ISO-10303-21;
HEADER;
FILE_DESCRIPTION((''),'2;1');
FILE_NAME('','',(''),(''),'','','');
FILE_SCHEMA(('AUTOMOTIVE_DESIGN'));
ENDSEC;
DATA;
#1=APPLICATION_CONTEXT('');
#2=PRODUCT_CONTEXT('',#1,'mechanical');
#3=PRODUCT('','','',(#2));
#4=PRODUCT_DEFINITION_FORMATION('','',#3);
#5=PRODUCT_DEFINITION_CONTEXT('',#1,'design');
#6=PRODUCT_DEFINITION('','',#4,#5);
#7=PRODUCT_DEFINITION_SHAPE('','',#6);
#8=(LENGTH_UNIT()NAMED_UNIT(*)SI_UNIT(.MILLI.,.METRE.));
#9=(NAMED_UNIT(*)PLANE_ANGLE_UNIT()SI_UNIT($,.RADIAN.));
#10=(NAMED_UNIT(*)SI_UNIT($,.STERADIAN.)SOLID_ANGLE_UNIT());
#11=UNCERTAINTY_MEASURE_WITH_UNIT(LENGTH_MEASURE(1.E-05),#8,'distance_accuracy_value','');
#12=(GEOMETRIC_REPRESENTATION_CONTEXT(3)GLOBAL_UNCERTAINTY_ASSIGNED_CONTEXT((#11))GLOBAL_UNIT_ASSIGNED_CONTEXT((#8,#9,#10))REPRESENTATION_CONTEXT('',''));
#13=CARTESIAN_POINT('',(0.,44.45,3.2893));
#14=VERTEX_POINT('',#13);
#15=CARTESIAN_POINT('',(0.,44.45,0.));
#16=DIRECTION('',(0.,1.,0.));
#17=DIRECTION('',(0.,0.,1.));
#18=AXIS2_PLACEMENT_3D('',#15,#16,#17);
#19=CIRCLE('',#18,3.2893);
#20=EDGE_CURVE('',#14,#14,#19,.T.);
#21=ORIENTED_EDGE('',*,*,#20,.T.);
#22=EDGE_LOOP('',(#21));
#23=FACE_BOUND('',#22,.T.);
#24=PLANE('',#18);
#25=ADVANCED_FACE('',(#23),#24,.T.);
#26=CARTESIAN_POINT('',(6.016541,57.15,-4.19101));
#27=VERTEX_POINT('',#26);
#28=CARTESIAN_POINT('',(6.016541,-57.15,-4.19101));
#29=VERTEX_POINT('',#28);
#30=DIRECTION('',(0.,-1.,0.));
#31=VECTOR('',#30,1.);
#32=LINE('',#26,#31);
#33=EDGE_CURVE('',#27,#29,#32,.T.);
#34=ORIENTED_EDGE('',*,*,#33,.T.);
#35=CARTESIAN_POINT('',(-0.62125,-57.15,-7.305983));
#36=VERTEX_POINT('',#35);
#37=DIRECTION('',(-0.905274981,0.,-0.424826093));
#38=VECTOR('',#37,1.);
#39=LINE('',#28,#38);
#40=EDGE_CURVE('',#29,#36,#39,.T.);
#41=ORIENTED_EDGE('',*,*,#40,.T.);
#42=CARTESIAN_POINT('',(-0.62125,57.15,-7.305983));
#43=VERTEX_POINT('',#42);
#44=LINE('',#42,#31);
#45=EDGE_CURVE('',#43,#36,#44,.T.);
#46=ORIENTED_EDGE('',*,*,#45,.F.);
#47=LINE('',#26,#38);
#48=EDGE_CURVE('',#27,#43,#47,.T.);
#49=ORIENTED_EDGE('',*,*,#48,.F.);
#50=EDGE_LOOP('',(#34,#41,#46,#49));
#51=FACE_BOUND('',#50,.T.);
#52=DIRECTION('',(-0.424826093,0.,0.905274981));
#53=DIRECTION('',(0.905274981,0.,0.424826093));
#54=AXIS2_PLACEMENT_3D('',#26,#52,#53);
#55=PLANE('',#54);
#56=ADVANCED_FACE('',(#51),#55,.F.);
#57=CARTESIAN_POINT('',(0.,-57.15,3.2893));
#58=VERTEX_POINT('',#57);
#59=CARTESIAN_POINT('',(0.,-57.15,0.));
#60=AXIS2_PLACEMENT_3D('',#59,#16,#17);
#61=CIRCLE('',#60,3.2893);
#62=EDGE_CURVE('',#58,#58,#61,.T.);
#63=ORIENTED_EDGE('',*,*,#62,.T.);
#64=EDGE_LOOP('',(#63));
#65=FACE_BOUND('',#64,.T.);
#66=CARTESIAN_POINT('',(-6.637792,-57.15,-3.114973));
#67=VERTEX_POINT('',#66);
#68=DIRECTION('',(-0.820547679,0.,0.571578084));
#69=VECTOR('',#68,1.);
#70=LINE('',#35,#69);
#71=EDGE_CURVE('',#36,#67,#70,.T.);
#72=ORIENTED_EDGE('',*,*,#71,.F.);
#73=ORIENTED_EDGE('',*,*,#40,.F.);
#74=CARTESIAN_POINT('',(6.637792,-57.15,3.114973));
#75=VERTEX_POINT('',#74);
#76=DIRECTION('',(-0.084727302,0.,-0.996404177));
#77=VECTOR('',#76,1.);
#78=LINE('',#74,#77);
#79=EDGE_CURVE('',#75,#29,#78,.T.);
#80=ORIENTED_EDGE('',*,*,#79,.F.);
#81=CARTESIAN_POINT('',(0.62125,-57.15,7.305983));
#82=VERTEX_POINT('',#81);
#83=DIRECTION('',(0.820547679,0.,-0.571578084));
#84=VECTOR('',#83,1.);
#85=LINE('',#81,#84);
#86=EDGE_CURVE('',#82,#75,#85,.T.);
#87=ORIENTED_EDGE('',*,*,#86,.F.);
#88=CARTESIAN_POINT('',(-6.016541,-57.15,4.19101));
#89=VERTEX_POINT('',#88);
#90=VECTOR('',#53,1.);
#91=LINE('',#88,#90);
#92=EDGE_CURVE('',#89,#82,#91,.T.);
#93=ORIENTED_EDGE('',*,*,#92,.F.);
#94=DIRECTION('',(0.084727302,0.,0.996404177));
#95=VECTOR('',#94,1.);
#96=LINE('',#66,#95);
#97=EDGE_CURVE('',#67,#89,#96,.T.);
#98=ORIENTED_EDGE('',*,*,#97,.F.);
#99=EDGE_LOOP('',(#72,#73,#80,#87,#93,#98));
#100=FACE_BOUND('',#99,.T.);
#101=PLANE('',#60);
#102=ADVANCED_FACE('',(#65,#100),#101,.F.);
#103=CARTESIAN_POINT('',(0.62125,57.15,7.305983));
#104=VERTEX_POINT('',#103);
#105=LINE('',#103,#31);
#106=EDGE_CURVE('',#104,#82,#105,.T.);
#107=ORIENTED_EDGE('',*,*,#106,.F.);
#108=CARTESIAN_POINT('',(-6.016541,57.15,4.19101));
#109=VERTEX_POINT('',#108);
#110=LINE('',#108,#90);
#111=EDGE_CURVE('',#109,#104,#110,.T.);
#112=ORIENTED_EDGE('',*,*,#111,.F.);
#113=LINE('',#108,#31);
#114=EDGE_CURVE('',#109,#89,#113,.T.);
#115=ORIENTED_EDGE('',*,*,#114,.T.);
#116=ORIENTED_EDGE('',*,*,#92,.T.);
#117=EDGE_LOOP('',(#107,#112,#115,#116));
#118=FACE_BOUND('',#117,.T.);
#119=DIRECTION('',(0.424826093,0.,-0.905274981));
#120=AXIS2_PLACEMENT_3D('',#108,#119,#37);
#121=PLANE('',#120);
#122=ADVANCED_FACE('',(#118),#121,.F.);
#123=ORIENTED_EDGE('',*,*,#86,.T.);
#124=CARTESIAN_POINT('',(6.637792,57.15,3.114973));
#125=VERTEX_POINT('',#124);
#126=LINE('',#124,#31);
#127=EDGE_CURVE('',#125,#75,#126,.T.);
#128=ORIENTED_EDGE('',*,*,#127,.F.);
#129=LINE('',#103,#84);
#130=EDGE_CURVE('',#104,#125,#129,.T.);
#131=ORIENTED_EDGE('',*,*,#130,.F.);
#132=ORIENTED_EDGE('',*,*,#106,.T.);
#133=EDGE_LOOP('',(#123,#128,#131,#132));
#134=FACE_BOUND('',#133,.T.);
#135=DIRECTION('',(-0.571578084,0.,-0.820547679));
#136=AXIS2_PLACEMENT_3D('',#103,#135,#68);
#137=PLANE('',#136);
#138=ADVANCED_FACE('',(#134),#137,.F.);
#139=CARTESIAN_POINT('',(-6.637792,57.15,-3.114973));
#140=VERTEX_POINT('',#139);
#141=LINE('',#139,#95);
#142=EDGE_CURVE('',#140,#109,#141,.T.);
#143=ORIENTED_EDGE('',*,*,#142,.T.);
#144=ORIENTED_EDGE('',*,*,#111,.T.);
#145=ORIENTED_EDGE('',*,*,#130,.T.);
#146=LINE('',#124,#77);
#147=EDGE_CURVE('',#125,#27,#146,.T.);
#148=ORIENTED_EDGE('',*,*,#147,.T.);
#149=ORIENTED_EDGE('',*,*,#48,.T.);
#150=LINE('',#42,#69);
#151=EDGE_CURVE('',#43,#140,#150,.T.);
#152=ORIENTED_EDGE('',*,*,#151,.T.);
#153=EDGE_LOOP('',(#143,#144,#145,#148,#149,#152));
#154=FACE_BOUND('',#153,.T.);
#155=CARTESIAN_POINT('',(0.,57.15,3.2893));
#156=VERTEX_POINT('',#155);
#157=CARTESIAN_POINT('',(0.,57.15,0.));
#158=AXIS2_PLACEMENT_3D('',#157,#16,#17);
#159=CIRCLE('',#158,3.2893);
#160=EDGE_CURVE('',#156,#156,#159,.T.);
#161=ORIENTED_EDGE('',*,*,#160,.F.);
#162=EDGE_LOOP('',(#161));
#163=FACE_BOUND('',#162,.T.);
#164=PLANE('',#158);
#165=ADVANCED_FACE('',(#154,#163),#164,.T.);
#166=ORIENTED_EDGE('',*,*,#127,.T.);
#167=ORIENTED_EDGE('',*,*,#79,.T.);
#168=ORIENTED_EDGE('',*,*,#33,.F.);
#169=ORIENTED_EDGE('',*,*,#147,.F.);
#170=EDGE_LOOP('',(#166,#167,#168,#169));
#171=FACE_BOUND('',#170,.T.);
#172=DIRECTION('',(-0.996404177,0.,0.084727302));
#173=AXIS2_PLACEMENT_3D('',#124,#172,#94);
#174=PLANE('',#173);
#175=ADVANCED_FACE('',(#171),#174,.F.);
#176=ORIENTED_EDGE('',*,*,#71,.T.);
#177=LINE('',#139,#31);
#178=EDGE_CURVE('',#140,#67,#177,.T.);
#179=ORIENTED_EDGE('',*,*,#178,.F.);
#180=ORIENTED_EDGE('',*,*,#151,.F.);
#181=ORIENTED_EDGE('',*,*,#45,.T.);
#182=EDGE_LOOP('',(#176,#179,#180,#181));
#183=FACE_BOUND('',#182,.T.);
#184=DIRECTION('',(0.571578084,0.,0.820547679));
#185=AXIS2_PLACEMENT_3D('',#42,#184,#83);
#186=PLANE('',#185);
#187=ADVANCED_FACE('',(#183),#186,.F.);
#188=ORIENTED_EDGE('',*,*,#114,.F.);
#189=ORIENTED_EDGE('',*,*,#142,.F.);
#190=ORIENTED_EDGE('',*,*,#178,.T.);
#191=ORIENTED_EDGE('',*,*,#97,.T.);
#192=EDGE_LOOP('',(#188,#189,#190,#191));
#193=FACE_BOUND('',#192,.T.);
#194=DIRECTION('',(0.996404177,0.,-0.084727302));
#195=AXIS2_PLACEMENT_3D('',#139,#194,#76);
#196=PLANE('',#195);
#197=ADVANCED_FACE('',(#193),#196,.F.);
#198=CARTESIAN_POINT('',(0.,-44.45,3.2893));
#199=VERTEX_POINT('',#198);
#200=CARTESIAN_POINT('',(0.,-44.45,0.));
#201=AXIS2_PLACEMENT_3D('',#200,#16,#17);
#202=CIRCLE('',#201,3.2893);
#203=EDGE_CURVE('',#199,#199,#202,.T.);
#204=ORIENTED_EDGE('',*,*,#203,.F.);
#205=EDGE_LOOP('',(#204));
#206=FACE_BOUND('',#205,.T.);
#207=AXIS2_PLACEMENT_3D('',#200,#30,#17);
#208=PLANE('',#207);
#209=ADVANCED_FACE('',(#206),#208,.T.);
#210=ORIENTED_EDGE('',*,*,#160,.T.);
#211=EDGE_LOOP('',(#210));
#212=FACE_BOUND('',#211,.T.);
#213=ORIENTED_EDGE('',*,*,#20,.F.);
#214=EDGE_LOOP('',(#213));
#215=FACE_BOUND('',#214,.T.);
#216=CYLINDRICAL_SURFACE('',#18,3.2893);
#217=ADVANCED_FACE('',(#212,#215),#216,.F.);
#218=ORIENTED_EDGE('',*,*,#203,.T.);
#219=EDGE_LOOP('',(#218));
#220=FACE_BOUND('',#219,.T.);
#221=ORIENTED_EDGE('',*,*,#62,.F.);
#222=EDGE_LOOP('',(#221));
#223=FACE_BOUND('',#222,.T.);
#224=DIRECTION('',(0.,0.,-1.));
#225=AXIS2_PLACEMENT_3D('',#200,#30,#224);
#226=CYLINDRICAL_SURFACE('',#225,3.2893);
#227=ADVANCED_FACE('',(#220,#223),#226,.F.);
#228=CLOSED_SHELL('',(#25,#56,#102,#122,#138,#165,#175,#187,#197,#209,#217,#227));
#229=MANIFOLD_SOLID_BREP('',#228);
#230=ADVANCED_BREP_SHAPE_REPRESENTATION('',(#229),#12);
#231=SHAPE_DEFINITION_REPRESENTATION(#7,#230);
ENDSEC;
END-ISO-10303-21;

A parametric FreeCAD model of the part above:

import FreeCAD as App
import Part
import Sketcher

V = App.Vector
Q = App.Units.Quantity

doc = App.newDocument("Part")
body = doc.addObject("PartDesign::Body", "Body")

# Sketch on XZ plane
sketch1 = body.newObject("Sketcher::SketchObject", "Sketch")
sketch1.AttachmentSupport = (doc.getObject("XZ_Plane"), [""])
sketch1.MapMode = "FlatFace"
sketch1.addGeometry(Part.LineSegment(V(6, -4, 0), V(-1, -7, 0)), False)
sketch1.addGeometry(Part.LineSegment(V(-1, -7, 0), V(-7, -3, 0)), False)
sketch1.addGeometry(Part.LineSegment(V(-7, -3, 0), V(-6, 4, 0)), False)
sketch1.addGeometry(Part.LineSegment(V(-6, 4, 0), V(1, 7, 0)), False)
sketch1.addGeometry(Part.LineSegment(V(1, 7, 0), V(7, 3, 0)), False)
sketch1.addGeometry(Part.LineSegment(V(7, 3, 0), V(6, -4, 0)), False)
sketch1.addConstraint(Sketcher.Constraint("Coincident", 0, 2, 1, 1))
sketch1.addConstraint(Sketcher.Constraint("Coincident", 1, 2, 2, 1))
sketch1.addConstraint(Sketcher.Constraint("Coincident", 2, 2, 3, 1))
sketch1.addConstraint(Sketcher.Constraint("Coincident", 3, 2, 4, 1))
sketch1.addConstraint(Sketcher.Constraint("Coincident", 4, 2, 5, 1))
sketch1.addConstraint(Sketcher.Constraint("Coincident", 5, 2, 0, 1))
sketch1.addConstraint(Sketcher.Constraint("Symmetric", 0, 2, 3, 2, -1, 1))
sketch1.addConstraint(Sketcher.Constraint("Symmetric", 1, 2, 4, 2, -1, 1))
sketch1.addConstraint(Sketcher.Constraint("Symmetric", 2, 2, 5, 2, -1, 1))
sketch1.addConstraint(Sketcher.Constraint("Equal", 0, 1))
sketch1.addConstraint(Sketcher.Constraint("Equal", 1, 2))
sketch1.addConstraint(Sketcher.Constraint("DistanceX", 0, 2, 3, 2, 1.2425))
sketch1.addConstraint(Sketcher.Constraint("Distance", 0, 7.332348))
sketch1.addConstraint(Sketcher.Constraint("DistanceX", 1, 2, -1, 1, 6.637792))
sketch1.addConstraint(Sketcher.Constraint("DistanceX", 2, 2, -1, 1, 6.016541))
pad1 = body.newObject("PartDesign::Pad", "Pad")
pad1.Profile = sketch1
pad1.Length = Q("4.5 in")
pad1.Midplane = True

# Sketch on XZ plane
sketch2 = body.newObject("Sketcher::SketchObject", "Sketch001")
sketch2.AttachmentSupport = (doc.getObject("XZ_Plane"), [""])
sketch2.MapMode = "FlatFace"
sketch2.AttachmentOffset = App.Placement(V(0, 0, -2.25 * 25.4), App.Rotation())
sketch2.addGeometry(Part.Circle(V(0, 0, 0), V(0, 0, 1), 3.3), False)
sketch2.addConstraint(Sketcher.Constraint("Coincident", 0, 3, -1, 1))
sketch2.addConstraint(Sketcher.Constraint("Diameter", 0, Q("0.259 in")))
pocket1 = body.newObject("PartDesign::Pocket", "Pocket")
pocket1.Profile = sketch2
pocket1.Length = Q("0.5 in")
pocket1.Reversed = True
doc.recompute()

mirrored = body.newObject("PartDesign::Mirrored", "Mirrored")
mirrored.Originals = [pocket1]
mirrored.MirrorPlane = (doc.getObject("XZ_Plane"), [""])
body.Tip = mirrored

doc.recompute()
